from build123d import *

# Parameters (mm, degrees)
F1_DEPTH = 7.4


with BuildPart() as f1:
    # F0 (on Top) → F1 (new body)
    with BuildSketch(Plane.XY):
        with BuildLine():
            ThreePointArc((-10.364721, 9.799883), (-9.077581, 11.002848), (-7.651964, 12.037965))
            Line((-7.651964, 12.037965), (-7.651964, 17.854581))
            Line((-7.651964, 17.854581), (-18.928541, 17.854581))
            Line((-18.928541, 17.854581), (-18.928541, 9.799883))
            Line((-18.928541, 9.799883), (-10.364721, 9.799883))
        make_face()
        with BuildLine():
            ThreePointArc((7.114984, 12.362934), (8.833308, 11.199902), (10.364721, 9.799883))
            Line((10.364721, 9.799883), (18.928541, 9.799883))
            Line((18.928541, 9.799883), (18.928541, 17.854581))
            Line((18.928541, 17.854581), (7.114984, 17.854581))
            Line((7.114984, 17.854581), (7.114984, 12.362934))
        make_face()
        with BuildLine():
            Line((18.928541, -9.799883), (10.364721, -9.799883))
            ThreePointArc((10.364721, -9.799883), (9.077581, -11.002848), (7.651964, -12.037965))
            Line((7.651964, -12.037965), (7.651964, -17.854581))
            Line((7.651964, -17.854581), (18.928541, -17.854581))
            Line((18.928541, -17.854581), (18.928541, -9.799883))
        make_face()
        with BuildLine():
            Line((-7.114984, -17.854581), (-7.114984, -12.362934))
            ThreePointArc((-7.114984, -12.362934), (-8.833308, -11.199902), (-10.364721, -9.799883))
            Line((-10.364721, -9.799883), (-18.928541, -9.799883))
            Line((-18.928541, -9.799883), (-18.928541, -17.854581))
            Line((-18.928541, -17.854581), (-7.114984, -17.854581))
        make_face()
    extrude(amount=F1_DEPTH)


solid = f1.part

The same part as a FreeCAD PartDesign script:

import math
import FreeCAD as App
import Part
import Sketcher

V = App.Vector

doc = App.newDocument("Part")
params = doc.addObject("Spreadsheet::Sheet", "Params")
for row, (alias, value) in enumerate([
    ("pad1_length", "7.4 mm"),
], start=1):
    params.set(f"A{row}", alias)
    params.set(f"B{row}", "=" + value)
    params.setAlias(f"B{row}", alias)

body = doc.addObject("PartDesign::Body", "Body")
body.AllowCompound = True

sketch1 = body.newObject("Sketcher::SketchObject", "Sketch")
sketch1.AttachmentSupport = (doc.getObject("XY_Plane"), [""])
sketch1.MapMode = "FlatFace"
sketch1.addGeometry([
    Part.ArcOfCircle(Part.Circle(V(0.000031, -0.000036, 0), V(0, 0, 1), 14.264168), math.radians(122.442214), math.radians(136.604493)),
    Part.LineSegment(V(-7.651964, 12.037965, 0), V(-7.651964, 17.854581, 0)),
    Part.LineSegment(V(-7.651964, 17.854581, 0), V(-18.928541, 17.854581, 0)),
    Part.LineSegment(V(-18.928541, 17.854581, 0), V(-18.928541, 9.799883, 0)),
    Part.LineSegment(V(-18.928541, 9.799883, 0), V(-10.364721, 9.799883, 0)),
    Part.ArcOfCircle(Part.Circle(V(-0.000012, -0.000017, 0), V(0, 0, 1), 14.264141), math.radians(43.395506), math.radians(60.079166)),
    Part.LineSegment(V(10.364721, 9.799883, 0), V(18.928541, 9.799883, 0)),
    Part.LineSegment(V(18.928541, 9.799883, 0), V(18.928541, 17.854581, 0)),
    Part.LineSegment(V(18.928541, 17.854581, 0), V(7.114984, 17.854581, 0)),
    Part.LineSegment(V(7.114984, 17.854581, 0), V(7.114984, 12.362934, 0)),
    Part.LineSegment(V(18.928541, -9.799883, 0), V(10.364721, -9.799883, 0)),
    Part.ArcOfCircle(Part.Circle(V(-0.000031, 0.000036, 0), V(0, 0, 1), 14.264168), math.radians(-57.557786), math.radians(-43.395507)),
    Part.LineSegment(V(7.651964, -12.037965, 0), V(7.651964, -17.854581, 0)),
    Part.LineSegment(V(7.651964, -17.854581, 0), V(18.928541, -17.854581, 0)),
    Part.LineSegment(V(18.928541, -17.854581, 0), V(18.928541, -9.799883, 0)),
    Part.LineSegment(V(-7.114984, -17.854581, 0), V(-7.114984, -12.362934, 0)),
    Part.ArcOfCircle(Part.Circle(V(0.000012, 0.000017, 0), V(0, 0, 1), 14.264141), math.radians(-136.604494), math.radians(-119.920834)),
    Part.LineSegment(V(-10.364721, -9.799883, 0), V(-18.928541, -9.799883, 0)),
    Part.LineSegment(V(-18.928541, -9.799883, 0), V(-18.928541, -17.854581, 0)),
    Part.LineSegment(V(-18.928541, -17.854581, 0), V(-7.114984, -17.854581, 0)),
], False)
sketch1.addConstraint([
    Sketcher.Constraint("Coincident", 0, 1, 1, 1),
    Sketcher.Constraint("Coincident", 1, 2, 2, 1),
    Sketcher.Constraint("Coincident", 2, 2, 3, 1),
    Sketcher.Constraint("Coincident", 3, 2, 4, 1),
    Sketcher.Constraint("Coincident", 4, 2, 0, 2),
    Sketcher.Constraint("Coincident", 5, 1, 6, 1),
    Sketcher.Constraint("Coincident", 6, 2, 7, 1),
    Sketcher.Constraint("Coincident", 7, 2, 8, 1),
    Sketcher.Constraint("Coincident", 8, 2, 9, 1),
    Sketcher.Constraint("Coincident", 9, 2, 5, 2),
    Sketcher.Constraint("Coincident", 10, 2, 11, 2),
    Sketcher.Constraint("Coincident", 11, 1, 12, 1),
    Sketcher.Constraint("Coincident", 12, 2, 13, 1),
    Sketcher.Constraint("Coincident", 13, 2, 14, 1),
    Sketcher.Constraint("Coincident", 14, 2, 10, 1),
    Sketcher.Constraint("Coincident", 15, 2, 16, 2),
    Sketcher.Constraint("Coincident", 16, 1, 17, 1),
    Sketcher.Constraint("Coincident", 17, 2, 18, 1),
    Sketcher.Constraint("Coincident", 18, 2, 19, 1),
    Sketcher.Constraint("Coincident", 19, 2, 15, 1),
    Sketcher.Constraint("Vertical", 1),
    Sketcher.Constraint("Horizontal", 2),
    Sketcher.Constraint("Vertical", 3),
    Sketcher.Constraint("Horizontal", 4),
    Sketcher.Constraint("Horizontal", 6),
    Sketcher.Constraint("Vertical", 7),
    Sketcher.Constraint("Horizontal", 8),
    Sketcher.Constraint("Vertical", 9),
    Sketcher.Constraint("Horizontal", 10),
    Sketcher.Constraint("Vertical", 12),
    Sketcher.Constraint("Horizontal", 13),
    Sketcher.Constraint("Vertical", 14),
    Sketcher.Constraint("Vertical", 15),
    Sketcher.Constraint("Horizontal", 17),
    Sketcher.Constraint("Vertical", 18),
    Sketcher.Constraint("Horizontal", 19),
    Sketcher.Constraint("Equal", 0, 11),
    Sketcher.Constraint("Equal", 5, 16),
    Sketcher.Constraint("Symmetric", 0, 3, 11, 3, -1, 1),
    Sketcher.Constraint("Symmetric", 5, 3, 16, 3, -1, 1),
    Sketcher.Constraint("Symmetric", 1, 2, 12, 2, -1, 1),
    Sketcher.Constraint("Symmetric", 3, 2, 14, 2, -1, 1),
    Sketcher.Constraint("Symmetric", 6, 2, 17, 2, -1, 1),
    Sketcher.Constraint("Symmetric", 8, 2, 19, 2, -1, 1),
    Sketcher.Constraint("Symmetric", 4, 2, 5, 1, -2),
    Sketcher.Constraint("Symmetric", 2, 2, 7, 2, -2),
    Sketcher.Constraint("Radius", 0, 14.264168),
    Sketcher.Constraint("Radius", 5, 14.264141),
    Sketcher.Constraint("DistanceY", 0, 3, 0, 1, 12.038001),
    Sketcher.Constraint("DistanceX", 4, 1, 4, 2, 8.56382),
    Sketcher.Constraint("DistanceY", 5, 3, 1, 2, 17.854598),
    Sketcher.Constraint("DistanceY", 5, 3, 3, 2, 9.7999),
    Sketcher.Constraint("DistanceX", 2, 2, 2, 1, 11.276577),
    Sketcher.Constraint("DistanceX", 8, 2, 8, 1, 11.813557),
    Sketcher.Constraint("DistanceY", -1, 1, 1, 2, 17.854581),
    Sketcher.Constraint("DistanceX", 2, 2, -1, 1, 18.928541),
])
pad1 = body.newObject("PartDesign::Pad", "Pad")
pad1.Profile = sketch1
pad1.setExpression("Length", "Params.pad1_length")

doc.recompute()
